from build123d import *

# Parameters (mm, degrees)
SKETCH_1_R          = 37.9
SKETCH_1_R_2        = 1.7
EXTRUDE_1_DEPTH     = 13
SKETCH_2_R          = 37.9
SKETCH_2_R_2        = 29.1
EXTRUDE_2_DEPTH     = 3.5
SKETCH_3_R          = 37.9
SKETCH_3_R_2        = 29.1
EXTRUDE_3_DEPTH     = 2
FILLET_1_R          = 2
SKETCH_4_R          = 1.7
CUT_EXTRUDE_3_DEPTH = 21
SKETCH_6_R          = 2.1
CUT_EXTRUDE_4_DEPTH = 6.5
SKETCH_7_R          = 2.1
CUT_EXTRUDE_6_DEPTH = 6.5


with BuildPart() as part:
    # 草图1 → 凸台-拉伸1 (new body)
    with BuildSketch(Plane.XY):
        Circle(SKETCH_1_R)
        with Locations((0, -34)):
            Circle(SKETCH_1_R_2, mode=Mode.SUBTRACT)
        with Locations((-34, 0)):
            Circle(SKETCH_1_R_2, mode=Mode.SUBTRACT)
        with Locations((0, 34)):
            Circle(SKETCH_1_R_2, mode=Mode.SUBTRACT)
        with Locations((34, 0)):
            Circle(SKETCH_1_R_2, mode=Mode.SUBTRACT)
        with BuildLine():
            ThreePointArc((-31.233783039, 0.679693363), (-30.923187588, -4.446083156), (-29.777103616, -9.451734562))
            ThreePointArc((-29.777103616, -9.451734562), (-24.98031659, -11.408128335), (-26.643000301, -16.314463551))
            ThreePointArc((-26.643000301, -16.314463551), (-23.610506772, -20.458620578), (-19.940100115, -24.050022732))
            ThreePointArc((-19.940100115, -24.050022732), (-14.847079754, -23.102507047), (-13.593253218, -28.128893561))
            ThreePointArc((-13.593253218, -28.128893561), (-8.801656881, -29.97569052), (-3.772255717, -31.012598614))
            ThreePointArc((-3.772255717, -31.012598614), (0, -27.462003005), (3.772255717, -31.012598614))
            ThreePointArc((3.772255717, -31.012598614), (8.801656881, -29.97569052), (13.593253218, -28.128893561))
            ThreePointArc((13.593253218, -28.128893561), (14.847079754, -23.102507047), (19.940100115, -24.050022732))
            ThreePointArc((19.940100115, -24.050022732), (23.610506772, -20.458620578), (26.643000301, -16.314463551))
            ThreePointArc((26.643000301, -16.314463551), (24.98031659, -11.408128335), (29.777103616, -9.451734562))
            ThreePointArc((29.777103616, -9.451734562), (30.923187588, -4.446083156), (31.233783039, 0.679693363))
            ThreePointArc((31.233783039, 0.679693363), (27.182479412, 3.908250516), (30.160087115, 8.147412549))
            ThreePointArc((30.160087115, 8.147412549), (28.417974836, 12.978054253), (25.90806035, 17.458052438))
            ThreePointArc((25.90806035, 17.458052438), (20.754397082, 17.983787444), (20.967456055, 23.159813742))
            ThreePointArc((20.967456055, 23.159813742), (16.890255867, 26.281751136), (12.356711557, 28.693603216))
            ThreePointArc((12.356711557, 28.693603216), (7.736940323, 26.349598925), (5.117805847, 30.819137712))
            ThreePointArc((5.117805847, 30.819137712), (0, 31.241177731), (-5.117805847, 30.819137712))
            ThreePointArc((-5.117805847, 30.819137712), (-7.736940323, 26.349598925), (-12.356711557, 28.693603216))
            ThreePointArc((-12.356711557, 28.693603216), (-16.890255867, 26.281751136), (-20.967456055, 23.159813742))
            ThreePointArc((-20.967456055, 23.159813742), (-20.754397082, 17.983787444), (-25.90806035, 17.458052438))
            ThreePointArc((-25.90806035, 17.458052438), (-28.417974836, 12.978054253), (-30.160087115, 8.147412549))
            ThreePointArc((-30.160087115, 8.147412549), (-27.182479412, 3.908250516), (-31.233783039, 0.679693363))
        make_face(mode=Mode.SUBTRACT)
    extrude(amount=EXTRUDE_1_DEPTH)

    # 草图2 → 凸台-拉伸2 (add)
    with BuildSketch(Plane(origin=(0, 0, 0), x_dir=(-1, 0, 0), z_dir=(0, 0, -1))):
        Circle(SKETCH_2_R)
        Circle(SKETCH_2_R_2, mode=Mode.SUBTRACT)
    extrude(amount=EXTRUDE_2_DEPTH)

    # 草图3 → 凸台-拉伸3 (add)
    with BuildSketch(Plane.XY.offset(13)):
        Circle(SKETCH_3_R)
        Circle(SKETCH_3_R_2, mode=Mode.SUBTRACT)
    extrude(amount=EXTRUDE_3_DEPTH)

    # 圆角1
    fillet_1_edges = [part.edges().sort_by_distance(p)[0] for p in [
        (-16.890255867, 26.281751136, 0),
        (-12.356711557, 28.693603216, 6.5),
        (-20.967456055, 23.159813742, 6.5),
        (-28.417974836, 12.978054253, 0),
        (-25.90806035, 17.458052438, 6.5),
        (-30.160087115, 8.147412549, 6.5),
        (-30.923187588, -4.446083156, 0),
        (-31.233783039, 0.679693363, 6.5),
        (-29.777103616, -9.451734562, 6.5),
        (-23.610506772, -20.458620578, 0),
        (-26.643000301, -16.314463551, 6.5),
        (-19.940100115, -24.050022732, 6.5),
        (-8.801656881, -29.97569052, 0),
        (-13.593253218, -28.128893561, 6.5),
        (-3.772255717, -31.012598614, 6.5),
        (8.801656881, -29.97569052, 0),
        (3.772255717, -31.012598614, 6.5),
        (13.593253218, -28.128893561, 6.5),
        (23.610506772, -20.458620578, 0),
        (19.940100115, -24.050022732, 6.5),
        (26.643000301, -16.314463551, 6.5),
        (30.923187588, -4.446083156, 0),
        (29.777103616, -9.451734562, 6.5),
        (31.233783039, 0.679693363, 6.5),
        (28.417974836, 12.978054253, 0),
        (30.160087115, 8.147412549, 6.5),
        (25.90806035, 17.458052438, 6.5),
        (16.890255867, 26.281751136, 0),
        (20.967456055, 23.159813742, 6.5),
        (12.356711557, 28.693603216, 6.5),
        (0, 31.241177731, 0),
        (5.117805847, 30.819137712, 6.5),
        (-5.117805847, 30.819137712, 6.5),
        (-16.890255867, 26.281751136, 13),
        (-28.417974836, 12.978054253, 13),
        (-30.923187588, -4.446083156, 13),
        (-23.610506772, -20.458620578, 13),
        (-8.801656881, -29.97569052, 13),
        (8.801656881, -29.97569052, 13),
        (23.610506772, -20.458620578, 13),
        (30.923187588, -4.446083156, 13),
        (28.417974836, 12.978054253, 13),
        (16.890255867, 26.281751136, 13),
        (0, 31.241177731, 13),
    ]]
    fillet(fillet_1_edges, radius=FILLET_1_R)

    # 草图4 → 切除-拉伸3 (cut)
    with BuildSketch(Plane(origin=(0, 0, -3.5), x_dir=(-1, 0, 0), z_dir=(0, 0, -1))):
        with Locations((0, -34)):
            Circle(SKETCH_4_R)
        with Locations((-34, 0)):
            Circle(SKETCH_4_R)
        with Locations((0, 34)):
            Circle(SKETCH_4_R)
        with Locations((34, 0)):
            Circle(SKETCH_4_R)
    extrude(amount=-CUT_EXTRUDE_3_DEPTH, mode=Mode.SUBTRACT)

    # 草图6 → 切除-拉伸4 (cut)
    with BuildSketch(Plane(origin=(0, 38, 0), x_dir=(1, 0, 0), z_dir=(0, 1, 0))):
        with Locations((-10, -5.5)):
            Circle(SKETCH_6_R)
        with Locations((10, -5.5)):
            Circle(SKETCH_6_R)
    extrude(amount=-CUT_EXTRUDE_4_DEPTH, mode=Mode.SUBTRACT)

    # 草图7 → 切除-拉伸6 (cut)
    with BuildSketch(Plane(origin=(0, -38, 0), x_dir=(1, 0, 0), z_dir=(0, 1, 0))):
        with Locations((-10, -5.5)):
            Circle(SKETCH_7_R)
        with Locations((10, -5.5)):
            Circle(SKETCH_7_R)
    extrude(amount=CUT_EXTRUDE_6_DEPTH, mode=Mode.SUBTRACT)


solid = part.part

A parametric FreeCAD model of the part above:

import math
import FreeCAD as App
import Part
import Sketcher
Q = App.Units.Quantity


def edges_at(feature, points):
    """Names of the edges that pass closest to the given points."""
    edges = feature.Shape.Edges
    near = lambda p: min(range(len(edges)), key=lambda i: edges[i].distToShape(Part.Vertex(*p))[0])
    return sorted({f"Edge{near(p) + 1}" for p in points})

doc = App.newDocument("Part")
body = doc.addObject("PartDesign::Body", "Body")

sketch1 = body.newObject("Sketcher::SketchObject", "Sketch")
sketch1.AttachmentSupport = (doc.getObject("XY_Plane"), [""])
sketch1.MapMode = "FlatFace"
sketch1.addGeometry([
    Part.Circle(App.Vector(0, 0, 0), App.Vector(0, 0, 1), 37.9),
    Part.Circle(App.Vector(0, -34, 0), App.Vector(0, 0, 1), 1.7),
    Part.Circle(App.Vector(-34, 0, 0), App.Vector(0, 0, 1), 1.7),
    Part.ArcOfCircle(Part.Circle(App.Vector(0, 0, 0), App.Vector(0, 0, 1), 31.2), math.radians(178.75), math.radians(197.61)),
    Part.ArcOfCircle(Part.Circle(App.Vector(-30.9, 4.4, 0), App.Vector(0, 0, 1), 3.8), math.radians(-95), math.radians(78)),
    Part.ArcOfCircle(Part.Circle(App.Vector(0, 0, 0), App.Vector(0, 0, 1), 31.2), math.radians(146.03), math.radians(164.88)),
    Part.ArcOfCircle(Part.Circle(App.Vector(-23.6, 20.5, 0), App.Vector(0, 0, 1), 3.8), math.radians(-127), math.radians(46)),
    Part.ArcOfCircle(Part.Circle(App.Vector(0, 0, 0), App.Vector(0, 0, 1), 31.2), math.radians(113.3), math.radians(132.16)),
    Part.ArcOfCircle(Part.Circle(App.Vector(-8.8, 30, 0), App.Vector(0, 0, 1), 3.8), math.radians(-160), math.radians(13)),
    Part.ArcOfCircle(Part.Circle(App.Vector(0, 0, 0), App.Vector(0, 0, 1), 31.2), math.radians(80.57), math.radians(99.43)),
    Part.ArcOfCircle(Part.Circle(App.Vector(8.8, 30, 0), App.Vector(0, 0, 1), 3.8), math.radians(167), math.radians(340)),
    Part.ArcOfCircle(Part.Circle(App.Vector(0, 0, 0), App.Vector(0, 0, 1), 31.2), math.radians(47.84), math.radians(66.7)),
    Part.ArcOfCircle(Part.Circle(App.Vector(23.6, 20.5, 0), App.Vector(0, 0, 1), 3.8), math.radians(134), math.radians(307)),
    Part.ArcOfCircle(Part.Circle(App.Vector(0, 0, 0), App.Vector(0, 0, 1), 31.2), math.radians(15.12), math.radians(33.97)),
    Part.ArcOfCircle(Part.Circle(App.Vector(30.9, 4.4, 0), App.Vector(0, 0, 1), 3.8), math.radians(102), math.radians(275)),
    Part.ArcOfCircle(Part.Circle(App.Vector(0, 0, 0), App.Vector(0, 0, 1), 31.2), math.radians(-17.61), math.radians(1.25)),
    Part.ArcOfCircle(Part.Circle(App.Vector(28.4, -13, 0), App.Vector(0, 0, 1), 3.8), math.radians(69), math.radians(242)),
    Part.ArcOfCircle(Part.Circle(App.Vector(0, 0, 0), App.Vector(0, 0, 1), 31.2), math.radians(-50.34), math.radians(-31.48)),
    Part.ArcOfCircle(Part.Circle(App.Vector(16.9, -26.3, 0), App.Vector(0, 0, 1), 3.8), math.radians(36), math.radians(209)),
    Part.ArcOfCircle(Part.Circle(App.Vector(0, 0, 0), App.Vector(0, 0, 1), 31.2), math.radians(-83.06), math.radians(-64.21)),
    Part.ArcOfCircle(Part.Circle(App.Vector(0, -31.2, 0), App.Vector(0, 0, 1), 3.8), math.radians(3), math.radians(177)),
    Part.ArcOfCircle(Part.Circle(App.Vector(0, 0, 0), App.Vector(0, 0, 1), 31.2), math.radians(-115.79), math.radians(-96.94)),
    Part.ArcOfCircle(Part.Circle(App.Vector(-16.9, -26.3, 0), App.Vector(0, 0, 1), 3.8), math.radians(-29), math.radians(144)),
    Part.ArcOfCircle(Part.Circle(App.Vector(0, 0, 0), App.Vector(0, 0, 1), 31.2), math.radians(-148.52), math.radians(-129.66)),
    Part.ArcOfCircle(Part.Circle(App.Vector(-28.4, -13, 0), App.Vector(0, 0, 1), 3.8), math.radians(-62), math.radians(111)),
    Part.Circle(App.Vector(34, 0, 0), App.Vector(0, 0, 1), 1.7),
    Part.Circle(App.Vector(0, 34, 0), App.Vector(0, 0, 1), 1.7),
], False)
sketch1.addConstraint([
    Sketcher.Constraint("Coincident", 3, 1, 4, 1),
    Sketcher.Constraint("Coincident", 4, 2, 5, 2),
    Sketcher.Constraint("Coincident", 5, 1, 6, 1),
    Sketcher.Constraint("Coincident", 6, 2, 7, 2),
    Sketcher.Constraint("Coincident", 7, 1, 8, 1),
    Sketcher.Constraint("Coincident", 8, 2, 9, 2),
    Sketcher.Constraint("Coincident", 9, 1, 10, 1),
    Sketcher.Constraint("Coincident", 10, 2, 11, 2),
    Sketcher.Constraint("Coincident", 11, 1, 12, 1),
    Sketcher.Constraint("Coincident", 12, 2, 13, 2),
    Sketcher.Constraint("Coincident", 13, 1, 14, 1),
    Sketcher.Constraint("Coincident", 14, 2, 15, 2),
    Sketcher.Constraint("Coincident", 15, 1, 16, 1),
    Sketcher.Constraint("Coincident", 16, 2, 17, 2),
    Sketcher.Constraint("Coincident", 17, 1, 18, 1),
    Sketcher.Constraint("Coincident", 18, 2, 19, 2),
    Sketcher.Constraint("Coincident", 19, 1, 20, 1),
    Sketcher.Constraint("Coincident", 20, 2, 21, 2),
    Sketcher.Constraint("Coincident", 21, 1, 22, 1),
    Sketcher.Constraint("Coincident", 22, 2, 23, 2),
    Sketcher.Constraint("Coincident", 23, 1, 24, 1),
    Sketcher.Constraint("Coincident", 24, 2, 3, 2),
    Sketcher.Constraint("Coincident", 0, 3, -1, 1),
    Sketcher.Constraint("Coincident", 3, 3, -1, 1),
    Sketcher.Constraint("Coincident", 5, 3, -1, 1),
    Sketcher.Constraint("Coincident", 7, 3, -1, 1),
    Sketcher.Constraint("Coincident", 9, 3, -1, 1),
    Sketcher.Constraint("Coincident", 11, 3, -1, 1),
    Sketcher.Constraint("Coincident", 13, 3, -1, 1),
    Sketcher.Constraint("Coincident", 15, 3, -1, 1),
    Sketcher.Constraint("Coincident", 17, 3, -1, 1),
    Sketcher.Constraint("Coincident", 19, 3, -1, 1),
    Sketcher.Constraint("Coincident", 21, 3, -1, 1),
    Sketcher.Constraint("Coincident", 23, 3, -1, 1),
    Sketcher.Constraint("Equal", 1, 2),
    Sketcher.Constraint("Equal", 3, 5),
    Sketcher.Constraint("Equal", 4, 6),
    Sketcher.Constraint("Equal", 5, 7),
    Sketcher.Constraint("Equal", 6, 8),
    Sketcher.Constraint("Equal", 7, 9),
    Sketcher.Constraint("Equal", 8, 10),
    Sketcher.Constraint("Equal", 9, 11),
    Sketcher.Constraint("Equal", 10, 12),
    Sketcher.Constraint("Equal", 11, 13),
    Sketcher.Constraint("Equal", 12, 14),
    Sketcher.Constraint("Equal", 13, 15),
    Sketcher.Constraint("Equal", 14, 16),
    Sketcher.Constraint("Equal", 15, 17),
    Sketcher.Constraint("Equal", 16, 18),
    Sketcher.Constraint("Equal", 17, 19),
    Sketcher.Constraint("Equal", 18, 20),
    Sketcher.Constraint("Equal", 19, 21),
    Sketcher.Constraint("Equal", 20, 22),
    Sketcher.Constraint("Equal", 21, 23),
    Sketcher.Constraint("Equal", 22, 24),
    Sketcher.Constraint("Equal", 2, 25),
    Sketcher.Constraint("Equal", 25, 26),
    Sketcher.Constraint("Symmetric", 2, 3, 25, 3, -1, 1),
    Sketcher.Constraint("Symmetric", 1, 3, 26, 3, -1, 1),
    Sketcher.Constraint("Symmetric", 8, 3, 10, 3, -2),
    Sketcher.Constraint("Symmetric", 6, 3, 12, 3, -2),
    Sketcher.Constraint("Symmetric", 4, 3, 14, 3, -2),
    Sketcher.Constraint("Symmetric", 18, 3, 22, 3, -2),
    Sketcher.Constraint("Symmetric", 16, 3, 24, 3, -2),
    Sketcher.Constraint("PointOnObject", 1, 3, -2),
    Sketcher.Constraint("PointOnObject", 2, 3, -1),
    Sketcher.Constraint("PointOnObject", 20, 3, -2),
    Sketcher.Constraint("Diameter", 0, Q("75.8 mm")),
    Sketcher.Constraint("Diameter", 1, Q("3.4 mm")),
    Sketcher.Constraint("DistanceY", 1, 3, -1, 1, Q("34 mm")),
    Sketcher.Constraint("DistanceX", 2, 3, -1, 1, Q("34 mm")),
    Sketcher.Constraint("DistanceX", -1, 1, 16, 2, Q("26.643 mm")),
    Sketcher.Constraint("Radius", 3, Q("31.241178 mm")),
    Sketcher.Constraint("Radius", 4, Q("3.779175 mm")),
    Sketcher.Constraint("DistanceX", 19, 1, 18, 3, Q("13.118 mm")),
    Sketcher.Constraint("DistanceX", -1, 1, 17, 1, Q("19.9401 mm")),
    Sketcher.Constraint("DistanceX", 4, 3, 4, 2, Q("0.7631 mm")),
    Sketcher.Constraint("DistanceX", 6, 2, 8, 3, Q("12.165799 mm")),
    Sketcher.Constraint("DistanceY", 4, 2, 6, 2, Q("15.012401 mm")),
    Sketcher.Constraint("DistanceY", -1, 1, 6, 3, Q("20.458621 mm")),
    Sketcher.Constraint("DistanceY", -1, 1, 8, 3, Q("29.975691 mm")),
    Sketcher.Constraint("DistanceY", 18, 3, -1, 1, Q("26.281751 mm")),
    Sketcher.Constraint("DistanceX", 5, 1, -1, 1, Q("25.90806 mm")),
    Sketcher.Constraint("DistanceX", 18, 3, 16, 3, Q("11.527719 mm")),
])
pad1 = body.newObject("PartDesign::Pad", "Pad")
pad1.Profile = sketch1
pad1.Length = 13

sketch2 = body.newObject("Sketcher::SketchObject", "Sketch001")
sketch2.AttachmentSupport = (doc.getObject("XY_Plane"), [""])
sketch2.MapMode = "FlatFace"
sketch2.addGeometry([
    Part.Circle(App.Vector(0, 0, 0), App.Vector(0, 0, 1), 38),
    Part.Circle(App.Vector(0, 0, 0), App.Vector(0, 0, 1), 29),
], False)
sketch2.addConstraint([
    Sketcher.Constraint("Coincident", 0, 3, -1, 1),
    Sketcher.Constraint("Coincident", 1, 3, -1, 1),
    Sketcher.Constraint("Diameter", 0, Q("75.8 mm")),
    Sketcher.Constraint("Diameter", 1, Q("58.2 mm")),
])
pad2 = body.newObject("PartDesign::Pad", "Pad001")
pad2.Profile = sketch2
pad2.Length = 3.5
pad2.Reversed = True

sketch3 = body.newObject("Sketcher::SketchObject", "Sketch002")
sketch3.AttachmentSupport = (doc.getObject("XY_Plane"), [""])
sketch3.MapMode = "FlatFace"
sketch3.AttachmentOffset = App.Placement(App.Vector(0, 0, 13), App.Rotation())
sketch3.addGeometry([
    Part.Circle(App.Vector(0, 0, 0), App.Vector(0, 0, 1), 38),
    Part.Circle(App.Vector(0, 0, 0), App.Vector(0, 0, 1), 29),
], False)
sketch3.addConstraint([
    Sketcher.Constraint("Coincident", 0, 3, -1, 1),
    Sketcher.Constraint("Coincident", 1, 3, -1, 1),
    Sketcher.Constraint("Diameter", 0, Q("75.8 mm")),
    Sketcher.Constraint("Diameter", 1, Q("58.2 mm")),
])
pad3 = body.newObject("PartDesign::Pad", "Pad002")
pad3.Profile = sketch3
pad3.Length = 2
doc.recompute()

fillet = body.newObject("PartDesign::Fillet", "Fillet")
fillet.Base = (pad3, edges_at(pad3, [
    (-16.89, 26.282, 0),
    (-12.357, 28.694, 6.5),
    (-20.967, 23.16, 6.5),
    (-28.418, 12.978, 0),
    (-25.908, 17.458, 6.5),
    (-30.16, 8.147, 6.5),
    (-30.923, -4.446, 0),
    (-31.234, 0.68, 6.5),
    (-29.777, -9.452, 6.5),
    (-23.611, -20.459, 0),
    (-26.643, -16.314, 6.5),
    (-19.94, -24.05, 6.5),
    (-8.802, -29.976, 0),
    (-13.593, -28.129, 6.5),
    (-3.772, -31.013, 6.5),
    (8.802, -29.976, 0),
    (3.772, -31.013, 6.5),
    (13.593, -28.129, 6.5),
    (23.611, -20.459, 0),
    (19.94, -24.05, 6.5),
    (26.643, -16.314, 6.5),
    (30.923, -4.446, 0),
    (29.777, -9.452, 6.5),
    (31.234, 0.68, 6.5),
    (28.418, 12.978, 0),
    (30.16, 8.147, 6.5),
    (25.908, 17.458, 6.5),
    (16.89, 26.282, 0),
    (20.967, 23.16, 6.5),
    (12.357, 28.694, 6.5),
    (0, 31.241, 0),
    (5.118, 30.819, 6.5),
    (-5.118, 30.819, 6.5),
    (-16.89, 26.282, 13),
    (-28.418, 12.978, 13),
    (-30.923, -4.446, 13),
    (-23.611, -20.459, 13),
    (-8.802, -29.976, 13),
    (8.802, -29.976, 13),
    (23.611, -20.459, 13),
    (30.923, -4.446, 13),
    (28.418, 12.978, 13),
    (16.89, 26.282, 13),
    (0, 31.241, 13),
]))
fillet.Radius = 2

sketch4 = body.newObject("Sketcher::SketchObject", "Sketch003")
sketch4.AttachmentSupport = (doc.getObject("XY_Plane"), [""])
sketch4.MapMode = "FlatFace"
sketch4.AttachmentOffset = App.Placement(App.Vector(0, 0, -3.5), App.Rotation())
sketch4.addGeometry([
    Part.Circle(App.Vector(0, -34, 0), App.Vector(0, 0, 1), 1.7),
    Part.Circle(App.Vector(34, 0, 0), App.Vector(0, 0, 1), 1.7),
    Part.Circle(App.Vector(0, 34, 0), App.Vector(0, 0, 1), 1.7),
    Part.Circle(App.Vector(-34, 0, 0), App.Vector(0, 0, 1), 1.7),
], False)
sketch4.addConstraint([
    Sketcher.Constraint("Equal", 0, 1),
    Sketcher.Constraint("Equal", 1, 2),
    Sketcher.Constraint("Equal", 2, 3),
    Sketcher.Constraint("Symmetric", 0, 3, 2, 3, -1, 1),
    Sketcher.Constraint("Symmetric", 1, 3, 3, 3, -1, 1),
    Sketcher.Constraint("PointOnObject", 0, 3, -2),
    Sketcher.Constraint("PointOnObject", 1, 3, -1),
    Sketcher.Constraint("Diameter", 0, Q("3.4 mm")),
    Sketcher.Constraint("DistanceY", 0, 3, -1, 1, Q("34 mm")),
    Sketcher.Constraint("DistanceX", -1, 1, 1, 3, Q("34 mm")),
])
pocket1 = body.newObject("PartDesign::Pocket", "Pocket")
pocket1.Profile = sketch4
pocket1.Length = 21
pocket1.Reversed = True

sketch5 = body.newObject("Sketcher::SketchObject", "Sketch004")
sketch5.AttachmentSupport = (doc.getObject("XZ_Plane"), [""])
sketch5.MapMode = "FlatFace"
sketch5.AttachmentOffset = App.Placement(App.Vector(0, 0, -38), App.Rotation())
sketch5.addGeometry([
    Part.Circle(App.Vector(-10, 5.5, 0), App.Vector(0, 0, 1), 2.1),
    Part.Circle(App.Vector(10, 5.5, 0), App.Vector(0, 0, 1), 2.1),
], False)
sketch5.addConstraint([
    Sketcher.Constraint("Equal", 0, 1),
    Sketcher.Constraint("Symmetric", 0, 3, 1, 3, -2),
    Sketcher.Constraint("Diameter", 0, Q("4.2 mm")),
    Sketcher.Constraint("DistanceX", 0, 3, -1, 1, Q("10 mm")),
    Sketcher.Constraint("DistanceY", -1, 1, 0, 3, Q("5.5 mm")),
])
pocket2 = body.newObject("PartDesign::Pocket", "Pocket001")
pocket2.Profile = sketch5
pocket2.Length = 6.5
pocket2.Reversed = True

sketch6 = body.newObject("Sketcher::SketchObject", "Sketch005")
sketch6.AttachmentSupport = (doc.getObject("XZ_Plane"), [""])
sketch6.MapMode = "FlatFace"
sketch6.AttachmentOffset = App.Placement(App.Vector(0, 0, 38), App.Rotation())
sketch6.addGeometry([
    Part.Circle(App.Vector(-10, 5.5, 0), App.Vector(0, 0, 1), 2.1),
    Part.Circle(App.Vector(10, 5.5, 0), App.Vector(0, 0, 1), 2.1),
], False)
sketch6.addConstraint([
    Sketcher.Constraint("Equal", 0, 1),
    Sketcher.Constraint("Symmetric", 0, 3, 1, 3, -2),
    Sketcher.Constraint("Diameter", 0, Q("4.2 mm")),
    Sketcher.Constraint("DistanceX", 0, 3, -1, 1, Q("10 mm")),
    Sketcher.Constraint("DistanceY", -1, 1, 0, 3, Q("5.5 mm")),
])
pocket3 = body.newObject("PartDesign::Pocket", "Pocket002")
pocket3.Profile = sketch6
pocket3.Length = 6.5

doc.recompute()
